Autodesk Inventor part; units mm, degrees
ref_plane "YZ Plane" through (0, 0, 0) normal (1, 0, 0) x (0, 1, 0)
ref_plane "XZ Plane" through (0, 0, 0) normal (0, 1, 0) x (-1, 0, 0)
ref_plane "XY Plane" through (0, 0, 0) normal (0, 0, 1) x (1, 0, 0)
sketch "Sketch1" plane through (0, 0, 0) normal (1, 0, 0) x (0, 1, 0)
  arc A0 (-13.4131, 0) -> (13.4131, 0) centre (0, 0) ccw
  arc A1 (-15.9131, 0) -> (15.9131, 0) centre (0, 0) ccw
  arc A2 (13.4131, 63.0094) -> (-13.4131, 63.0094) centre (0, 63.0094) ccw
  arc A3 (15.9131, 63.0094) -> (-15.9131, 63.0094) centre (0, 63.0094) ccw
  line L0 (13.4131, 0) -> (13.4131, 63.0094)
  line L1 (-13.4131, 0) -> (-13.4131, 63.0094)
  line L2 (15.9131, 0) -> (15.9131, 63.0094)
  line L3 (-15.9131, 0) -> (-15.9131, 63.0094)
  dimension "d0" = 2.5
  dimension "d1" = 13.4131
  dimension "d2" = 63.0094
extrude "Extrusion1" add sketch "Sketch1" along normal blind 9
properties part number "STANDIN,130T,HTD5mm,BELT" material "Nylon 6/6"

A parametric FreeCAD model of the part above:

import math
import FreeCAD as App
import Part
import Sketcher

V = App.Vector
Q = App.Units.Quantity

doc = App.newDocument("Part")
params = doc.addObject("Spreadsheet::Sheet", "Params")
for row, (alias, value) in enumerate([
    ("pad1_length", "9 mm"),
], start=1):
    params.set(f"A{row}", alias)
    params.set(f"B{row}", "=" + value)
    params.setAlias(f"B{row}", alias)

body = doc.addObject("PartDesign::Body", "Body")

# Sketch on YZ plane
sketch1 = body.newObject("Sketcher::SketchObject", "Sketch")
sketch1.AttachmentSupport = (doc.getObject("YZ_Plane"), [""])
sketch1.MapMode = "FlatFace"
sketch1.addGeometry(Part.LineSegment(V(-16, 63, 0), V(-16, 0, 0)), False)
sketch1.addGeometry(Part.ArcOfCircle(Part.Circle(V(0, 0, 0), V(0, 0, 1), 16), math.radians(180), math.radians(360)), False)
sketch1.addGeometry(Part.LineSegment(V(16, 0, 0), V(16, 63, 0)), False)
sketch1.addGeometry(Part.ArcOfCircle(Part.Circle(V(0, 63, 0), V(0, 0, 1), 16), math.radians(0), math.radians(180)), False)
sketch1.addGeometry(Part.ArcOfCircle(Part.Circle(V(0, 0, 0), V(0, 0, 1), 13), math.radians(180), math.radians(360)), False)
sketch1.addGeometry(Part.LineSegment(V(-13, 0, 0), V(-13, 63, 0)), False)
sketch1.addGeometry(Part.ArcOfCircle(Part.Circle(V(0, 63, 0), V(0, 0, 1), 13), math.radians(0), math.radians(180)), False)
sketch1.addGeometry(Part.LineSegment(V(13, 63, 0), V(13, 0, 0)), False)
sketch1.addConstraint(Sketcher.Constraint("Tangent", 0, 2, 1, 1))
sketch1.addConstraint(Sketcher.Constraint("Tangent", 1, 2, 2, 1))
sketch1.addConstraint(Sketcher.Constraint("Tangent", 2, 2, 3, 1))
sketch1.addConstraint(Sketcher.Constraint("Tangent", 3, 2, 0, 1))
sketch1.addConstraint(Sketcher.Constraint("Tangent", 4, 1, 5, 1))
sketch1.addConstraint(Sketcher.Constraint("Tangent", 5, 2, 6, 2))
sketch1.addConstraint(Sketcher.Constraint("Tangent", 6, 1, 7, 1))
sketch1.addConstraint(Sketcher.Constraint("Tangent", 7, 2, 4, 2))
sketch1.addConstraint(Sketcher.Constraint("Vertical", 0))
sketch1.addConstraint(Sketcher.Constraint("Vertical", 2))
sketch1.addConstraint(Sketcher.Constraint("Vertical", 5))
sketch1.addConstraint(Sketcher.Constraint("Vertical", 7))
sketch1.addConstraint(Sketcher.Constraint("Coincident", 1, 3, -1, 1))
sketch1.addConstraint(Sketcher.Constraint("Coincident", 4, 3, -1, 1))
sketch1.addConstraint(Sketcher.Constraint("Horizontal", 6, 3, 2, 2))
sketch1.addConstraint(Sketcher.Constraint("Radius", 4, Q("13.413 mm")))
sketch1.addConstraint(Sketcher.Constraint("DistanceX", 0, 2, 4, 1, Q("2.5 mm")))
sketch1.addConstraint(Sketcher.Constraint("DistanceY", 0, 2, 0, 1, Q("63.0094 mm")))
pad1 = body.newObject("PartDesign::Pad", "Pad")
pad1.Profile = sketch1
pad1.setExpression("Length", "Params.pad1_length")

doc.recompute()
